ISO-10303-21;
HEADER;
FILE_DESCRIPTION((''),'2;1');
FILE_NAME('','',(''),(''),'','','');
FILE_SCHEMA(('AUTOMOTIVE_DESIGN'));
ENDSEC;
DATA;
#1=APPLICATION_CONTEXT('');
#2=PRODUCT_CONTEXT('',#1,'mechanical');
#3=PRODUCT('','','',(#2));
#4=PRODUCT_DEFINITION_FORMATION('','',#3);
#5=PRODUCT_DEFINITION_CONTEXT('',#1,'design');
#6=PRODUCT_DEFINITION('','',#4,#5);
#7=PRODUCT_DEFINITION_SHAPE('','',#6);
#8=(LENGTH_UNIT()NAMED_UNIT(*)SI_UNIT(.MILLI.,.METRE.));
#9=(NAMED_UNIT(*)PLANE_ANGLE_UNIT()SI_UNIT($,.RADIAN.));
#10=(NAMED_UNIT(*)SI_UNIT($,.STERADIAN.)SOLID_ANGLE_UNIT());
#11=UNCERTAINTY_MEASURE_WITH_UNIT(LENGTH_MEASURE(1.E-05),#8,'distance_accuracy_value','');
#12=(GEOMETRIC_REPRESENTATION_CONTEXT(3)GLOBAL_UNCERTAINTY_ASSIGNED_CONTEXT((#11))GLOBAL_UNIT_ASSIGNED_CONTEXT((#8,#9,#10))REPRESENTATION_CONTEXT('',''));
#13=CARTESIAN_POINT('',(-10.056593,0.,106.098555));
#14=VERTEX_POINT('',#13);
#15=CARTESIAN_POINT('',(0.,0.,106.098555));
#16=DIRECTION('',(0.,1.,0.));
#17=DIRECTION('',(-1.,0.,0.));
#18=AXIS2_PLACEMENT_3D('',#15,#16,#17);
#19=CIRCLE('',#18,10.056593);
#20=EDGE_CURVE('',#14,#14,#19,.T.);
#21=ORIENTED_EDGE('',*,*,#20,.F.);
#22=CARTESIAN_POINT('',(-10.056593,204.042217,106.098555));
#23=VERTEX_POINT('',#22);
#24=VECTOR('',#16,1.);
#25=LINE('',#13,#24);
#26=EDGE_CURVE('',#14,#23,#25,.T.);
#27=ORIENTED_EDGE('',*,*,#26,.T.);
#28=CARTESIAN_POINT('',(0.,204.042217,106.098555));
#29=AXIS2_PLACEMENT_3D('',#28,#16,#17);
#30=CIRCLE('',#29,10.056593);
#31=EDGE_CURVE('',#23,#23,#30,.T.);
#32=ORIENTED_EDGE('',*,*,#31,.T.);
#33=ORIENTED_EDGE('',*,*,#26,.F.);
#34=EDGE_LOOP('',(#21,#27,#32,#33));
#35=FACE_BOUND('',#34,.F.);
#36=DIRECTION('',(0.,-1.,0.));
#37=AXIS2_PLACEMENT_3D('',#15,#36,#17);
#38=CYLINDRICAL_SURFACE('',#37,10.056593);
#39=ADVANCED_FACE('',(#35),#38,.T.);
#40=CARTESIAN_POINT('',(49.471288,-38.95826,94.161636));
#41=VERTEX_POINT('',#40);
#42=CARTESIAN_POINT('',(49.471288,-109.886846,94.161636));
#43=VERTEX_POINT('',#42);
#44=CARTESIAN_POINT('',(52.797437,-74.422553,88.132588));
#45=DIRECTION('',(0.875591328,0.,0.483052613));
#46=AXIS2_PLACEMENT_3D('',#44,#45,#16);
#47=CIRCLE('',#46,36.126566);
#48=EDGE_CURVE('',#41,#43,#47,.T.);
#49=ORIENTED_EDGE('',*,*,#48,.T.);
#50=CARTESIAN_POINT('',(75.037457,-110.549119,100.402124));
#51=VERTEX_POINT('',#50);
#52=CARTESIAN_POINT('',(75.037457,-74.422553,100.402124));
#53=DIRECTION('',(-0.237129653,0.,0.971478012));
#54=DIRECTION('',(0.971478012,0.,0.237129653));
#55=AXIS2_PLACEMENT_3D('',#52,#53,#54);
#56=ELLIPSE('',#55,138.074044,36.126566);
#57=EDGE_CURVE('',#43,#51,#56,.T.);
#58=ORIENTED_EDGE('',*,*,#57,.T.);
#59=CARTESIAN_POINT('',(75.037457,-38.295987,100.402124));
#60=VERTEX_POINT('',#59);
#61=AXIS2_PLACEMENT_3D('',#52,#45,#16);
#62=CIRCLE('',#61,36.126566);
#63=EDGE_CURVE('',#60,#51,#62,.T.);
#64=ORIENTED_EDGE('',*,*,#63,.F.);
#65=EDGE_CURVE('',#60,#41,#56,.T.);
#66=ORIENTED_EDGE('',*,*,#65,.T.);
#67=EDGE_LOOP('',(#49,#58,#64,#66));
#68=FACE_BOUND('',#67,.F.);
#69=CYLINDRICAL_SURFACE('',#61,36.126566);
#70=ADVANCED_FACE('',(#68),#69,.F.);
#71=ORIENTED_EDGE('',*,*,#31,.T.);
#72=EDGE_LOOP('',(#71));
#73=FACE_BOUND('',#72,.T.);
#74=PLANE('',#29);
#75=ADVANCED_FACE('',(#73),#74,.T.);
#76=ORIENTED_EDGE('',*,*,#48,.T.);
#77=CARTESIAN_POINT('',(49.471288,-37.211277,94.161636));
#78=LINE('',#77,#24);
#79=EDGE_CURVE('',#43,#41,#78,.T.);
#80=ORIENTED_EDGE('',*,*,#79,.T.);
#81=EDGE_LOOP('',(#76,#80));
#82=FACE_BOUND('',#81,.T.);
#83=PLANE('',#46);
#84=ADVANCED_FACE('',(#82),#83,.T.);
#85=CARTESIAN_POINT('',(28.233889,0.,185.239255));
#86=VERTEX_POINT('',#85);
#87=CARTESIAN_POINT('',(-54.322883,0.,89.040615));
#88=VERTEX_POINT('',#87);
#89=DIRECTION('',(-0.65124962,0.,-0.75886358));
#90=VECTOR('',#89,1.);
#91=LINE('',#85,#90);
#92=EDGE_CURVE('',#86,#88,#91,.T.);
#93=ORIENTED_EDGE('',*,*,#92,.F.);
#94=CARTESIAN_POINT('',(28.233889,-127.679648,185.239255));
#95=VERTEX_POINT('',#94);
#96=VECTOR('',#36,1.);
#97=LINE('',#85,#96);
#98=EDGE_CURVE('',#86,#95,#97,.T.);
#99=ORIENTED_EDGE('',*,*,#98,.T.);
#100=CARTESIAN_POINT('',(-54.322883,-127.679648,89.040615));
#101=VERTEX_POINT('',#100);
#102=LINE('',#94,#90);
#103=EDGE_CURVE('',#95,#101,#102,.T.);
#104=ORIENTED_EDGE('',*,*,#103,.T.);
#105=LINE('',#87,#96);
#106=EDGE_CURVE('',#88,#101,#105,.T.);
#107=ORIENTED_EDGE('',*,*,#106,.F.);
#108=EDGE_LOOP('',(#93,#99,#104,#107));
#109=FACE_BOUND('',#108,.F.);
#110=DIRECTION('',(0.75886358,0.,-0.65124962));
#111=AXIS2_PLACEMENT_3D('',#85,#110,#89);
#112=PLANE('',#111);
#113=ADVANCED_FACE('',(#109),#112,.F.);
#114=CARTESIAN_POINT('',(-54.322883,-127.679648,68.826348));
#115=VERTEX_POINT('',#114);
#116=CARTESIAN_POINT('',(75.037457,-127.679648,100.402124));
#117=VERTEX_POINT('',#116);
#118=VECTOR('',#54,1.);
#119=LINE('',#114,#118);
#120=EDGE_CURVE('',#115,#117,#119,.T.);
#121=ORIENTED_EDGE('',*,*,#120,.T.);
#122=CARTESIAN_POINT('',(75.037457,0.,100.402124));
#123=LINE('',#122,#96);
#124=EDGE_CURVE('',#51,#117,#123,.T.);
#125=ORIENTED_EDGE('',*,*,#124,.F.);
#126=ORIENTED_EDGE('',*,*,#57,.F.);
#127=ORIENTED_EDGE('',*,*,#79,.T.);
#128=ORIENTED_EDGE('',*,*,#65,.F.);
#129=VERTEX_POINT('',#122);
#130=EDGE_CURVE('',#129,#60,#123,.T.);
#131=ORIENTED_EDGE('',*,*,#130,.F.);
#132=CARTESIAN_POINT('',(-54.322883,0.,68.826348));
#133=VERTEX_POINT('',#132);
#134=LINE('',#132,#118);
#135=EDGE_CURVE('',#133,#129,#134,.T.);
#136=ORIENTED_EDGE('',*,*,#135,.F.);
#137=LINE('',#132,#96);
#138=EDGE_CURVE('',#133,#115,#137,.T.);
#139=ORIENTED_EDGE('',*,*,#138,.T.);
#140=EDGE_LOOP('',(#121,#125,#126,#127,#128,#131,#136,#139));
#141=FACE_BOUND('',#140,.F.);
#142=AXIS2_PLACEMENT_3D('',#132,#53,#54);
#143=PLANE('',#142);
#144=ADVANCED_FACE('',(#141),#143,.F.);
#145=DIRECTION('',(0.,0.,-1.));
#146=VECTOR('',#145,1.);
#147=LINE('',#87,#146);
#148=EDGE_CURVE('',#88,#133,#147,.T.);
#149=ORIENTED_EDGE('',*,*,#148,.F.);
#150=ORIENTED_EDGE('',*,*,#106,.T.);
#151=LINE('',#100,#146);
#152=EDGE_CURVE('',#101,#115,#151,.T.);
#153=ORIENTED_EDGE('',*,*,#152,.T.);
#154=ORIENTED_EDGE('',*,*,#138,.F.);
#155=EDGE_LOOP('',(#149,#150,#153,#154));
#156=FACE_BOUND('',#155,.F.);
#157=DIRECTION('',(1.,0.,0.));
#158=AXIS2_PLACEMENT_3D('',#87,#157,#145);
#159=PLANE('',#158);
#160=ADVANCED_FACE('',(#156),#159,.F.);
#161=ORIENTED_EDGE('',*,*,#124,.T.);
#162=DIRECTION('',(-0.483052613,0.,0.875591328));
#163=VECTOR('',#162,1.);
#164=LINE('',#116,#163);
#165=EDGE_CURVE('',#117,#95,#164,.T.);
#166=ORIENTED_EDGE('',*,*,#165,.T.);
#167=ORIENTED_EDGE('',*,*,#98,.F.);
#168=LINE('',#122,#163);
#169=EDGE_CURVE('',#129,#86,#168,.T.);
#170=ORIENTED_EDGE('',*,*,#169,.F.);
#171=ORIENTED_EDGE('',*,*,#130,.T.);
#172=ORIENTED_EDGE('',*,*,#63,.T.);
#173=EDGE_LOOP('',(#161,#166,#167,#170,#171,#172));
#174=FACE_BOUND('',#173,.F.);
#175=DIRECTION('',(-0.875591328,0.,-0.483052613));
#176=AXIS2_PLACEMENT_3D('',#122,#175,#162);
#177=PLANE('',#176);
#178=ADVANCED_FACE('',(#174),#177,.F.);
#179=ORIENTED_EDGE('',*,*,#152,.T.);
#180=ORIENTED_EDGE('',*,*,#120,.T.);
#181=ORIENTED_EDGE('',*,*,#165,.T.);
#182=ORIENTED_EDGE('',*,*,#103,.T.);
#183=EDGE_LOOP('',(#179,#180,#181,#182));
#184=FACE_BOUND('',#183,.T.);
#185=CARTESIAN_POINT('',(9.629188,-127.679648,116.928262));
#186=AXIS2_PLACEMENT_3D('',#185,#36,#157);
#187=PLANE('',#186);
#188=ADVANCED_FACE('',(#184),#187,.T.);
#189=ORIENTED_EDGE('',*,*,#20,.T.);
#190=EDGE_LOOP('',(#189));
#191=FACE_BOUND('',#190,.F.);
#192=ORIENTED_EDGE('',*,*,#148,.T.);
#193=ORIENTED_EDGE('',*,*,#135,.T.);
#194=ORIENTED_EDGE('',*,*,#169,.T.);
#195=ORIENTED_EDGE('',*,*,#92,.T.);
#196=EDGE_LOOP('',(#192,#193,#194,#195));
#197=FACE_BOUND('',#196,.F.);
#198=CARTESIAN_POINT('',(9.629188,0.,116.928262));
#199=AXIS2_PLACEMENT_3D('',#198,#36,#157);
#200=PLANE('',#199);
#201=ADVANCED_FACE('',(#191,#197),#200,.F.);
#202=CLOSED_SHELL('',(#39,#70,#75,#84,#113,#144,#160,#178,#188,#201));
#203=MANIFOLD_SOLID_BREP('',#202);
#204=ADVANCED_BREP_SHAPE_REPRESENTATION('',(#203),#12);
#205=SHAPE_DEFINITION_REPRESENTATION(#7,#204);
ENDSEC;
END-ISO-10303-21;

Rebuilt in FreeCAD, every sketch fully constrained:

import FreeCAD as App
import Part
import Sketcher

doc = App.newDocument("Part")
params = doc.addObject("Spreadsheet::Sheet", "Params")
for row, (alias, value) in enumerate([
    ("pad1_length", "127.679648 mm"),
    ("pad2_length", "204.042217 mm"),
    ("pocket1_length", "1 in"),
], start=1):
    params.set(f"A{row}", alias)
    params.set(f"B{row}", "=" + value)
    params.setAlias(f"B{row}", alias)

body = doc.addObject("PartDesign::Body", "Body")

# Sketch on XZ plane
sketch1 = body.newObject("Sketcher::SketchObject", "Sketch")
sketch1.AttachmentSupport = (doc.getObject("XZ_Plane"), [""])
sketch1.MapMode = "FlatFace"
sketch1.addGeometry([
    Part.LineSegment(App.Vector(28, 185, 0), App.Vector(-54, 89, 0)),
    Part.LineSegment(App.Vector(-54, 89, 0), App.Vector(-54, 69, 0)),
    Part.LineSegment(App.Vector(-54, 69, 0), App.Vector(75, 100, 0)),
    Part.LineSegment(App.Vector(75, 100, 0), App.Vector(28, 185, 0)),
], False)
sketch1.addConstraint([
    Sketcher.Constraint("Coincident", 0, 2, 1, 1),
    Sketcher.Constraint("Coincident", 1, 2, 2, 1),
    Sketcher.Constraint("Coincident", 2, 2, 3, 1),
    Sketcher.Constraint("Coincident", 3, 2, 0, 1),
    Sketcher.Constraint("Vertical", 1),
    Sketcher.Constraint("Distance", 0, 126.766712),
    Sketcher.Constraint("Distance", 2, 133.158279),
    Sketcher.Constraint("Distance", 3, 96.891242),
    Sketcher.Constraint("DistanceY", 1, 2, 1, 1, 20.214267),
    Sketcher.Constraint("DistanceX", -1, 1, 3, 2, 28.233889),
    Sketcher.Constraint("DistanceX", 0, 2, 2, 2, 129.360341),
    Sketcher.Constraint("DistanceY", -1, 1, 0, 2, 89.040615),
])
pad1 = body.newObject("PartDesign::Pad", "Pad")
pad1.Profile = sketch1
pad1.setExpression("Length", "Params.pad1_length")

# Sketch on XZ plane
sketch2 = body.newObject("Sketcher::SketchObject", "Sketch001")
sketch2.AttachmentSupport = (doc.getObject("XZ_Plane"), [""])
sketch2.MapMode = "FlatFace"
sketch2.addGeometry(Part.Circle(App.Vector(0, 106, 0), App.Vector(0, 0, 1), 10), False)
sketch2.addConstraint([
    Sketcher.Constraint("PointOnObject", 0, 3, -2),
    Sketcher.Constraint("Diameter", 0, 20.113185),
    Sketcher.Constraint("DistanceY", -1, 1, 0, 3, 106.098555),
])
pad2 = body.newObject("PartDesign::Pad", "Pad001")
pad2.Profile = sketch2
pad2.setExpression("Length", "Params.pad2_length")
pad2.Reversed = True

# Sketch on an angled plane
sketch3 = body.newObject("Sketcher::SketchObject", "Sketch002")
sketch3.Placement = App.Placement(App.Vector(99.993979, 0, 55.165408), App.Rotation(App.Vector(0, 1, 0), App.Vector(-0.483052613, 0, 0.875591328), App.Vector(0.875591328, 0, 0.483052613), "ZXY"))
sketch3.addGeometry(Part.Circle(App.Vector(-74, 52, 0), App.Vector(0, 0, 1), 36), False)
sketch3.addConstraint([
    Sketcher.Constraint("Diameter", 0, 72.253132),
    Sketcher.Constraint("DistanceY", -1, 1, 0, 3, 51.66419),
    Sketcher.Constraint("DistanceX", 0, 3, -1, 1, 74.422553),
])
pocket1 = body.newObject("PartDesign::Pocket", "Pocket")
pocket1.Profile = sketch3
pocket1.setExpression("Length", "Params.pocket1_length")

doc.recompute()
